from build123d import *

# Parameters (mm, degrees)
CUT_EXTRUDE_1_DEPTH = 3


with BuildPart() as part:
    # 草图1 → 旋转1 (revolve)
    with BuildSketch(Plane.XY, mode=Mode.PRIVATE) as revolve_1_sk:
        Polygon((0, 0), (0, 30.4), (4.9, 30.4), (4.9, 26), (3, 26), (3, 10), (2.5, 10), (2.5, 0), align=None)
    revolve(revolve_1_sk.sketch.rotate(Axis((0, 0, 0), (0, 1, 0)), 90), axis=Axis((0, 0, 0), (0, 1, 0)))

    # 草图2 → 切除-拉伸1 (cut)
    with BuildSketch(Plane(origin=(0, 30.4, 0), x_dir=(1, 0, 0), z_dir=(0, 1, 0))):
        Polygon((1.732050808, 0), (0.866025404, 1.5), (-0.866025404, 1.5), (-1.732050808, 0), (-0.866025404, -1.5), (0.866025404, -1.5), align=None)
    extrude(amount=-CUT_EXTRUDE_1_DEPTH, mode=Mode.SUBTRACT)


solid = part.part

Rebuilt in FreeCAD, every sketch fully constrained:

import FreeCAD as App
import Part
import Sketcher

V = App.Vector
Q = App.Units.Quantity

doc = App.newDocument("Part")
params = doc.addObject("Spreadsheet::Sheet", "Params")
for row, (alias, value) in enumerate([
    ("sketch1_height", "10 mm"),
    ("sketch1_height2", "16 mm"),
    ("sketch1_width", "2.5 mm"),
    ("sketch1_width2", "0.5 mm"),
    ("sketch1_width3", "1.9 mm"),
    ("revolution_angle", "360 deg"),
    ("pocket1_length", "3 mm"),
], start=1):
    params.set(f"A{row}", alias)
    params.set(f"B{row}", "=" + value)
    params.setAlias(f"B{row}", alias)

body = doc.addObject("PartDesign::Body", "Body")

# Sketch on XY plane
sketch1 = doc.addObject("Sketcher::SketchObject", "Sketch")
body.addObject(sketch1)
sketch1.AttachmentSupport = (doc.XY_Plane, [""])
sketch1.MapMode = "FlatFace"
sketch1.addGeometry([
    Part.LineSegment(V(0, 30.4, 0), V(0, 0, 0)),  # 0
    Part.LineSegment(V(0, 0, 0), V(2.5, 0, 0)),  # 1
    Part.LineSegment(V(2.5, 0, 0), V(2.5, 10, 0)),  # 2
    Part.LineSegment(V(2.5, 10, 0), V(3, 10, 0)),  # 3
    Part.LineSegment(V(3, 10, 0), V(3, 26, 0)),  # 4
    Part.LineSegment(V(3, 26, 0), V(4.9, 26, 0)),  # 5
    Part.LineSegment(V(4.9, 26, 0), V(4.9, 30.4, 0)),  # 6
    Part.LineSegment(V(4.9, 30.4, 0), V(0, 30.4, 0)),  # 7
], False)
sketch1.addConstraint([
    Sketcher.Constraint("Coincident", 0, 2, 1, 1),
    Sketcher.Constraint("Coincident", 1, 2, 2, 1),
    Sketcher.Constraint("Coincident", 2, 2, 3, 1),
    Sketcher.Constraint("Coincident", 3, 2, 4, 1),
    Sketcher.Constraint("Coincident", 4, 2, 5, 1),
    Sketcher.Constraint("Coincident", 5, 2, 6, 1),
    Sketcher.Constraint("Coincident", 6, 2, 7, 1),
    Sketcher.Constraint("Coincident", 7, 2, 0, 1),
    Sketcher.Constraint("Vertical", 0),
    Sketcher.Constraint("Horizontal", 1),
    Sketcher.Constraint("Vertical", 2),
    Sketcher.Constraint("Horizontal", 3),
    Sketcher.Constraint("Vertical", 4),
    Sketcher.Constraint("Horizontal", 5),
    Sketcher.Constraint("Vertical", 6),
    Sketcher.Constraint("Horizontal", 7),
    Sketcher.Constraint("Coincident", 0, 2, -1, 1),
    Sketcher.Constraint("DistanceY", 2, 1, 2, 2, 10.0),
    Sketcher.Constraint("DistanceY", 4, 1, 4, 2, 16.0),
    Sketcher.Constraint("DistanceX", 1, 1, 1, 2, 2.5),
    Sketcher.Constraint("DistanceX", 3, 1, 3, 2, 0.5),
    Sketcher.Constraint("DistanceX", 5, 1, 5, 2, 1.9),
    Sketcher.Constraint("DistanceY", 0, 2, 0, 1, 30.4),
])
sketch1.setExpression("Constraints[17]", "Params.sketch1_height")
sketch1.setExpression("Constraints[18]", "Params.sketch1_height2")
sketch1.setExpression("Constraints[19]", "Params.sketch1_width")
sketch1.setExpression("Constraints[20]", "Params.sketch1_width2")
sketch1.setExpression("Constraints[21]", "Params.sketch1_width3")
revolution = doc.addObject("PartDesign::Revolution", "Revolution")
body.addObject(revolution)
revolution.Profile = sketch1
revolution.ReferenceAxis = (sketch1, ["V_Axis"])
revolution.setExpression("Angle", "Params.revolution_angle")

# Sketch on XZ plane
sketch2 = doc.addObject("Sketcher::SketchObject", "Sketch001")
body.addObject(sketch2)
sketch2.AttachmentSupport = (doc.XZ_Plane, [""])
sketch2.MapMode = "FlatFace"
sketch2.AttachmentOffset = App.Placement(V(0, 0, -30.4), App.Rotation())
sketch2.addGeometry([
    Part.LineSegment(V(1.7, 0, 0), V(0.9, -1.5, 0)),  # 0
    Part.LineSegment(V(0.9, -1.5, 0), V(-0.9, -1.5, 0)),  # 1
    Part.LineSegment(V(-0.9, -1.5, 0), V(-1.7, 0, 0)),  # 2
    Part.LineSegment(V(-1.7, 0, 0), V(-0.9, 1.5, 0)),  # 3
    Part.LineSegment(V(-0.9, 1.5, 0), V(0.9, 1.5, 0)),  # 4
    Part.LineSegment(V(0.9, 1.5, 0), V(1.7, 0, 0)),  # 5
], False)
sketch2.addConstraint([
    Sketcher.Constraint("Coincident", 0, 2, 1, 1),
    Sketcher.Constraint("Coincident", 1, 2, 2, 1),
    Sketcher.Constraint("Coincident", 2, 2, 3, 1),
    Sketcher.Constraint("Coincident", 3, 2, 4, 1),
    Sketcher.Constraint("Coincident", 4, 2, 5, 1),
    Sketcher.Constraint("Coincident", 5, 2, 0, 1),
    Sketcher.Constraint("Horizontal", 1),
    Sketcher.Constraint("Horizontal", 4),
    Sketcher.Constraint("Symmetric", 0, 2, 3, 2, -1, 1),
    Sketcher.Constraint("Symmetric", 2, 2, 5, 2, -1, 1),
    Sketcher.Constraint("PointOnObject", 2, 2, -1),
    Sketcher.Constraint("Parallel", 2, 5),
    Sketcher.Constraint("Vertical", 1, 2, 3, 2),
    Sketcher.Constraint("Angle", 0, Q("-120 deg")),
    Sketcher.Constraint("DistanceY", 1, 2, 3, 2, 3.0),
    Sketcher.Constraint("DistanceX", 1, 2, 1, 1, 1.732051),
])
pocket1 = doc.addObject("PartDesign::Pocket", "Pocket")
body.addObject(pocket1)
pocket1.Profile = sketch2
pocket1.setExpression("Length", "Params.pocket1_length")
pocket1.Reversed = True

doc.recompute()
